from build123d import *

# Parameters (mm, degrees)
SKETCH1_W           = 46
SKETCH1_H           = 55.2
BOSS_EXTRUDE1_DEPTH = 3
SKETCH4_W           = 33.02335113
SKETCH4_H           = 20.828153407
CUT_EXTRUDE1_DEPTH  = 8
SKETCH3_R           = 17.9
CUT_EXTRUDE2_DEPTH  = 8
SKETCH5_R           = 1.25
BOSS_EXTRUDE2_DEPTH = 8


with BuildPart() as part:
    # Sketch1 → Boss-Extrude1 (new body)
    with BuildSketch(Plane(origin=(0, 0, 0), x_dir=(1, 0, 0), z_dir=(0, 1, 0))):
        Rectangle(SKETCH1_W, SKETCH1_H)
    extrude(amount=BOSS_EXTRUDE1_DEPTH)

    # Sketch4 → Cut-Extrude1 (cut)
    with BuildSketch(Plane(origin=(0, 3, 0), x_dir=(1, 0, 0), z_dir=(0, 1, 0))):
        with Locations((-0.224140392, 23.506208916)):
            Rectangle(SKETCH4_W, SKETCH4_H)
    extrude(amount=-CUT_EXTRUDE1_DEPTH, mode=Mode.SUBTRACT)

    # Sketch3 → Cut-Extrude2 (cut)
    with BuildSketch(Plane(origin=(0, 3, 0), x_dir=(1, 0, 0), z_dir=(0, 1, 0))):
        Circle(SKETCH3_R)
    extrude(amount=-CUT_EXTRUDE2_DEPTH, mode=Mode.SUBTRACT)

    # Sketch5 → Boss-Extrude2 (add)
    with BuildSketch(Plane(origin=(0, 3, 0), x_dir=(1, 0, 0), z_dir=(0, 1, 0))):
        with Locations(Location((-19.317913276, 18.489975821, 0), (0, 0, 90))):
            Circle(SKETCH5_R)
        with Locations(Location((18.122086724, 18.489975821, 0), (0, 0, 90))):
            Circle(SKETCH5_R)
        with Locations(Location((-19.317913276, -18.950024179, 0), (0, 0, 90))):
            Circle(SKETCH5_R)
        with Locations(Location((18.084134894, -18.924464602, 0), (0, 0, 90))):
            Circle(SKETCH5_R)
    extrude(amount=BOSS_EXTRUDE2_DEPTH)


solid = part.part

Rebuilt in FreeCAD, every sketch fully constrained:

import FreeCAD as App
import Part
import Sketcher

V = App.Vector


def add_polygon(sketch, points):
    """Adds a closed chain of lines whose ends are joined by coincident constraints."""
    first, n = sketch.GeometryCount, len(points)
    for a, b in zip(points, points[1:] + points[:1]):
        sketch.addGeometry(Part.LineSegment(App.Vector(*a, 0), App.Vector(*b, 0)), False)
    for i in range(n):
        sketch.addConstraint(Sketcher.Constraint("Coincident", first + i, 2, first + (i + 1) % n, 1))

doc = App.newDocument("Part")
body = doc.addObject("PartDesign::Body", "Body")

# Sketch on XZ plane
sketch1 = body.newObject("Sketcher::SketchObject", "Sketch")
sketch1.AttachmentSupport = (doc.getObject("XZ_Plane"), [""])
sketch1.MapMode = "FlatFace"
add_polygon(sketch1, [(-23, -28), (-23, 28), (23, 28), (23, -28)])  # lines 0-3
sketch1.addConstraint([
    Sketcher.Constraint("Vertical", 0),
    Sketcher.Constraint("Horizontal", 1),
    Sketcher.Constraint("Vertical", 2),
    Sketcher.Constraint("Horizontal", 3),
    Sketcher.Constraint("Symmetric", 0, 2, 2, 2, -1, 1),
    Sketcher.Constraint("DistanceX", 1, 1, 1, 2, 46.0),
    Sketcher.Constraint("DistanceY", 0, 1, 0, 2, 55.2),
])
pad1 = body.newObject("PartDesign::Pad", "Pad")
pad1.Profile = sketch1
pad1.Length = 3
pad1.Reversed = True

# Sketch on XZ plane
sketch2 = body.newObject("Sketcher::SketchObject", "Sketch001")
sketch2.AttachmentSupport = (doc.getObject("XZ_Plane"), [""])
sketch2.MapMode = "FlatFace"
sketch2.AttachmentOffset = App.Placement(V(0, 0, -3), App.Rotation())
add_polygon(sketch2, [(-17, -34), (-17, -13), (16, -13), (16, -34)])  # lines 0-3
sketch2.addConstraint([
    Sketcher.Constraint("Vertical", 0),
    Sketcher.Constraint("Horizontal", 1),
    Sketcher.Constraint("Vertical", 2),
    Sketcher.Constraint("Horizontal", 3),
    Sketcher.Constraint("DistanceX", 1, 1, 1, 2, 33.023351),
    Sketcher.Constraint("DistanceY", 0, 1, 0, 2, 20.828153),
    Sketcher.Constraint("DistanceX", 0, 2, -1, 1, 16.735816),
    Sketcher.Constraint("DistanceY", 0, 2, -1, 1, 13.092132),
])
pocket1 = body.newObject("PartDesign::Pocket", "Pocket")
pocket1.Profile = sketch2
pocket1.Length = 8
pocket1.Reversed = True

# Sketch on XZ plane
sketch3 = body.newObject("Sketcher::SketchObject", "Sketch002")
sketch3.AttachmentSupport = (doc.getObject("XZ_Plane"), [""])
sketch3.MapMode = "FlatFace"
sketch3.AttachmentOffset = App.Placement(V(0, 0, -3), App.Rotation())
sketch3.addGeometry(Part.Circle(V(0, 0, 0), V(0, 0, 1), 18), False)
sketch3.addConstraint([
    Sketcher.Constraint("Coincident", 0, 3, -1, 1),
    Sketcher.Constraint("Diameter", 0, 35.8),
])
pocket2 = body.newObject("PartDesign::Pocket", "Pocket001")
pocket2.Profile = sketch3
pocket2.Length = 8
pocket2.Reversed = True

# Sketch on XZ plane
sketch4 = body.newObject("Sketcher::SketchObject", "Sketch003")
sketch4.AttachmentSupport = (doc.getObject("XZ_Plane"), [""])
sketch4.MapMode = "FlatFace"
sketch4.AttachmentOffset = App.Placement(V(0, 0, -3), App.Rotation())
sketch4.addGeometry([
    Part.Circle(V(-19.3, -18.5, 0), V(0, 0, 1), 1.2),
    Part.Circle(V(18.1, -18.5, 0), V(0, 0, 1), 1.2),
    Part.Circle(V(-19.3, 19, 0), V(0, 0, 1), 1.2),
    Part.Circle(V(18.1, 18.9, 0), V(0, 0, 1), 1.2),
], False)
sketch4.addConstraint([
    Sketcher.Constraint("Equal", 0, 1),
    Sketcher.Constraint("Equal", 1, 2),
    Sketcher.Constraint("Equal", 2, 3),
    Sketcher.Constraint("Horizontal", 0, 3, 1, 3),
    Sketcher.Constraint("Vertical", 0, 3, 2, 3),
    Sketcher.Constraint("Diameter", 0, 2.5),
    Sketcher.Constraint("DistanceX", 0, 3, 1, 3, 37.44),
    Sketcher.Constraint("DistanceY", 0, 3, 2, 3, 37.44),
    Sketcher.Constraint("DistanceX", 2, 3, 3, 3, 37.402048),
    Sketcher.Constraint("DistanceY", 3, 3, 2, 3, 0.02556),
    Sketcher.Constraint("DistanceX", 0, 3, -1, 1, 19.317913),
    Sketcher.Constraint("DistanceY", 0, 3, -1, 1, 18.489976),
])
pad2 = body.newObject("PartDesign::Pad", "Pad001")
pad2.Profile = sketch4
pad2.Length = 8
pad2.Reversed = True

doc.recompute()
